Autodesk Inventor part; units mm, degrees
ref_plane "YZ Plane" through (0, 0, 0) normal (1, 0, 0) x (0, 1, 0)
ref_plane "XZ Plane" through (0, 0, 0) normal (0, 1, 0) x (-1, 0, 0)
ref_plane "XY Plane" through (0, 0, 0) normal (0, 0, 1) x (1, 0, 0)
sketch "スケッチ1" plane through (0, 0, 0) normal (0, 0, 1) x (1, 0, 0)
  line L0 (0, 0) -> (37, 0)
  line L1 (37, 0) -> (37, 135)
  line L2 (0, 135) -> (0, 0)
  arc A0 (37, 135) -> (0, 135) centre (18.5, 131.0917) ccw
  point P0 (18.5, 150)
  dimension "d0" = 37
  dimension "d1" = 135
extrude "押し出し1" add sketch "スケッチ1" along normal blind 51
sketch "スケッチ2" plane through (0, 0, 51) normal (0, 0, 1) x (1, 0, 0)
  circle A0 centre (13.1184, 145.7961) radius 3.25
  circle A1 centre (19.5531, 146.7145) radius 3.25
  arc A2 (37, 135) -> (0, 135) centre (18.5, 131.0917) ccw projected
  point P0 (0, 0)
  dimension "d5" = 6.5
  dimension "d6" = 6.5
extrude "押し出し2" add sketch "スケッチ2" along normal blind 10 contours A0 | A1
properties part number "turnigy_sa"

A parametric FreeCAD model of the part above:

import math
import FreeCAD as App
import Part
import Sketcher

doc = App.newDocument("Part")
body = doc.addObject("PartDesign::Body", "Body")

sketch1 = body.newObject("Sketcher::SketchObject", "Sketch")
sketch1.AttachmentSupport = (doc.getObject("XY_Plane"), [""])
sketch1.MapMode = "FlatFace"
sketch1.addGeometry([
    Part.LineSegment(App.Vector(0, 135, 0), App.Vector(0, 0, 0)),
    Part.LineSegment(App.Vector(0, 0, 0), App.Vector(37, 0, 0)),
    Part.LineSegment(App.Vector(37, 0, 0), App.Vector(37, 135, 0)),
    Part.ArcOfCircle(Part.Circle(App.Vector(18.5, 131.0917, 0), App.Vector(0, 0, 1), 18.908326), math.radians(11.928875), math.radians(168.071125)),
], False)
sketch1.addConstraint([
    Sketcher.Constraint("Coincident", 0, 2, 1, 1),
    Sketcher.Constraint("Coincident", 1, 2, 2, 1),
    Sketcher.Constraint("Coincident", 2, 2, 3, 1),
    Sketcher.Constraint("Coincident", 3, 2, 0, 1),
    Sketcher.Constraint("Vertical", 0),
    Sketcher.Constraint("Horizontal", 1),
    Sketcher.Constraint("Vertical", 2),
    Sketcher.Constraint("Coincident", 0, 2, -1, 1),
    Sketcher.Constraint("Horizontal", 2, 2, 3, 2),
    Sketcher.Constraint("DistanceX", 1, 1, 1, 2, 37.0),
    Sketcher.Constraint("DistanceY", 0, 2, 0, 1, 135.0),
    Sketcher.Constraint("Radius", 3, 18.9083),
])
pad1 = body.newObject("PartDesign::Pad", "Pad")
pad1.Profile = sketch1
pad1.Length = 51

sketch2 = body.newObject("Sketcher::SketchObject", "Sketch001")
sketch2.AttachmentSupport = (doc.getObject("XY_Plane"), [""])
sketch2.MapMode = "FlatFace"
sketch2.AttachmentOffset = App.Placement(App.Vector(0, 0, 51), App.Rotation())
sketch2.addGeometry([
    Part.Circle(App.Vector(13.1184, 145.7961, 0), App.Vector(0, 0, 1), 3.25),
    Part.Circle(App.Vector(19.5531, 146.7145, 0), App.Vector(0, 0, 1), 3.25),
], False)
sketch2.addConstraint([
    Sketcher.Constraint("Equal", 0, 1),
    Sketcher.Constraint("Diameter", 0, 6.5),
    Sketcher.Constraint("DistanceY", -1, 1, 0, 3, 145.796),
    Sketcher.Constraint("DistanceX", -1, 1, 1, 3, 19.553),
    Sketcher.Constraint("DistanceX", -1, 1, 0, 3, 13.1184),
    Sketcher.Constraint("DistanceY", -1, 1, 1, 3, 146.7145),
])
pad2 = body.newObject("PartDesign::Pad", "Pad001")
pad2.Profile = sketch2
pad2.Length = 10

doc.recompute()
